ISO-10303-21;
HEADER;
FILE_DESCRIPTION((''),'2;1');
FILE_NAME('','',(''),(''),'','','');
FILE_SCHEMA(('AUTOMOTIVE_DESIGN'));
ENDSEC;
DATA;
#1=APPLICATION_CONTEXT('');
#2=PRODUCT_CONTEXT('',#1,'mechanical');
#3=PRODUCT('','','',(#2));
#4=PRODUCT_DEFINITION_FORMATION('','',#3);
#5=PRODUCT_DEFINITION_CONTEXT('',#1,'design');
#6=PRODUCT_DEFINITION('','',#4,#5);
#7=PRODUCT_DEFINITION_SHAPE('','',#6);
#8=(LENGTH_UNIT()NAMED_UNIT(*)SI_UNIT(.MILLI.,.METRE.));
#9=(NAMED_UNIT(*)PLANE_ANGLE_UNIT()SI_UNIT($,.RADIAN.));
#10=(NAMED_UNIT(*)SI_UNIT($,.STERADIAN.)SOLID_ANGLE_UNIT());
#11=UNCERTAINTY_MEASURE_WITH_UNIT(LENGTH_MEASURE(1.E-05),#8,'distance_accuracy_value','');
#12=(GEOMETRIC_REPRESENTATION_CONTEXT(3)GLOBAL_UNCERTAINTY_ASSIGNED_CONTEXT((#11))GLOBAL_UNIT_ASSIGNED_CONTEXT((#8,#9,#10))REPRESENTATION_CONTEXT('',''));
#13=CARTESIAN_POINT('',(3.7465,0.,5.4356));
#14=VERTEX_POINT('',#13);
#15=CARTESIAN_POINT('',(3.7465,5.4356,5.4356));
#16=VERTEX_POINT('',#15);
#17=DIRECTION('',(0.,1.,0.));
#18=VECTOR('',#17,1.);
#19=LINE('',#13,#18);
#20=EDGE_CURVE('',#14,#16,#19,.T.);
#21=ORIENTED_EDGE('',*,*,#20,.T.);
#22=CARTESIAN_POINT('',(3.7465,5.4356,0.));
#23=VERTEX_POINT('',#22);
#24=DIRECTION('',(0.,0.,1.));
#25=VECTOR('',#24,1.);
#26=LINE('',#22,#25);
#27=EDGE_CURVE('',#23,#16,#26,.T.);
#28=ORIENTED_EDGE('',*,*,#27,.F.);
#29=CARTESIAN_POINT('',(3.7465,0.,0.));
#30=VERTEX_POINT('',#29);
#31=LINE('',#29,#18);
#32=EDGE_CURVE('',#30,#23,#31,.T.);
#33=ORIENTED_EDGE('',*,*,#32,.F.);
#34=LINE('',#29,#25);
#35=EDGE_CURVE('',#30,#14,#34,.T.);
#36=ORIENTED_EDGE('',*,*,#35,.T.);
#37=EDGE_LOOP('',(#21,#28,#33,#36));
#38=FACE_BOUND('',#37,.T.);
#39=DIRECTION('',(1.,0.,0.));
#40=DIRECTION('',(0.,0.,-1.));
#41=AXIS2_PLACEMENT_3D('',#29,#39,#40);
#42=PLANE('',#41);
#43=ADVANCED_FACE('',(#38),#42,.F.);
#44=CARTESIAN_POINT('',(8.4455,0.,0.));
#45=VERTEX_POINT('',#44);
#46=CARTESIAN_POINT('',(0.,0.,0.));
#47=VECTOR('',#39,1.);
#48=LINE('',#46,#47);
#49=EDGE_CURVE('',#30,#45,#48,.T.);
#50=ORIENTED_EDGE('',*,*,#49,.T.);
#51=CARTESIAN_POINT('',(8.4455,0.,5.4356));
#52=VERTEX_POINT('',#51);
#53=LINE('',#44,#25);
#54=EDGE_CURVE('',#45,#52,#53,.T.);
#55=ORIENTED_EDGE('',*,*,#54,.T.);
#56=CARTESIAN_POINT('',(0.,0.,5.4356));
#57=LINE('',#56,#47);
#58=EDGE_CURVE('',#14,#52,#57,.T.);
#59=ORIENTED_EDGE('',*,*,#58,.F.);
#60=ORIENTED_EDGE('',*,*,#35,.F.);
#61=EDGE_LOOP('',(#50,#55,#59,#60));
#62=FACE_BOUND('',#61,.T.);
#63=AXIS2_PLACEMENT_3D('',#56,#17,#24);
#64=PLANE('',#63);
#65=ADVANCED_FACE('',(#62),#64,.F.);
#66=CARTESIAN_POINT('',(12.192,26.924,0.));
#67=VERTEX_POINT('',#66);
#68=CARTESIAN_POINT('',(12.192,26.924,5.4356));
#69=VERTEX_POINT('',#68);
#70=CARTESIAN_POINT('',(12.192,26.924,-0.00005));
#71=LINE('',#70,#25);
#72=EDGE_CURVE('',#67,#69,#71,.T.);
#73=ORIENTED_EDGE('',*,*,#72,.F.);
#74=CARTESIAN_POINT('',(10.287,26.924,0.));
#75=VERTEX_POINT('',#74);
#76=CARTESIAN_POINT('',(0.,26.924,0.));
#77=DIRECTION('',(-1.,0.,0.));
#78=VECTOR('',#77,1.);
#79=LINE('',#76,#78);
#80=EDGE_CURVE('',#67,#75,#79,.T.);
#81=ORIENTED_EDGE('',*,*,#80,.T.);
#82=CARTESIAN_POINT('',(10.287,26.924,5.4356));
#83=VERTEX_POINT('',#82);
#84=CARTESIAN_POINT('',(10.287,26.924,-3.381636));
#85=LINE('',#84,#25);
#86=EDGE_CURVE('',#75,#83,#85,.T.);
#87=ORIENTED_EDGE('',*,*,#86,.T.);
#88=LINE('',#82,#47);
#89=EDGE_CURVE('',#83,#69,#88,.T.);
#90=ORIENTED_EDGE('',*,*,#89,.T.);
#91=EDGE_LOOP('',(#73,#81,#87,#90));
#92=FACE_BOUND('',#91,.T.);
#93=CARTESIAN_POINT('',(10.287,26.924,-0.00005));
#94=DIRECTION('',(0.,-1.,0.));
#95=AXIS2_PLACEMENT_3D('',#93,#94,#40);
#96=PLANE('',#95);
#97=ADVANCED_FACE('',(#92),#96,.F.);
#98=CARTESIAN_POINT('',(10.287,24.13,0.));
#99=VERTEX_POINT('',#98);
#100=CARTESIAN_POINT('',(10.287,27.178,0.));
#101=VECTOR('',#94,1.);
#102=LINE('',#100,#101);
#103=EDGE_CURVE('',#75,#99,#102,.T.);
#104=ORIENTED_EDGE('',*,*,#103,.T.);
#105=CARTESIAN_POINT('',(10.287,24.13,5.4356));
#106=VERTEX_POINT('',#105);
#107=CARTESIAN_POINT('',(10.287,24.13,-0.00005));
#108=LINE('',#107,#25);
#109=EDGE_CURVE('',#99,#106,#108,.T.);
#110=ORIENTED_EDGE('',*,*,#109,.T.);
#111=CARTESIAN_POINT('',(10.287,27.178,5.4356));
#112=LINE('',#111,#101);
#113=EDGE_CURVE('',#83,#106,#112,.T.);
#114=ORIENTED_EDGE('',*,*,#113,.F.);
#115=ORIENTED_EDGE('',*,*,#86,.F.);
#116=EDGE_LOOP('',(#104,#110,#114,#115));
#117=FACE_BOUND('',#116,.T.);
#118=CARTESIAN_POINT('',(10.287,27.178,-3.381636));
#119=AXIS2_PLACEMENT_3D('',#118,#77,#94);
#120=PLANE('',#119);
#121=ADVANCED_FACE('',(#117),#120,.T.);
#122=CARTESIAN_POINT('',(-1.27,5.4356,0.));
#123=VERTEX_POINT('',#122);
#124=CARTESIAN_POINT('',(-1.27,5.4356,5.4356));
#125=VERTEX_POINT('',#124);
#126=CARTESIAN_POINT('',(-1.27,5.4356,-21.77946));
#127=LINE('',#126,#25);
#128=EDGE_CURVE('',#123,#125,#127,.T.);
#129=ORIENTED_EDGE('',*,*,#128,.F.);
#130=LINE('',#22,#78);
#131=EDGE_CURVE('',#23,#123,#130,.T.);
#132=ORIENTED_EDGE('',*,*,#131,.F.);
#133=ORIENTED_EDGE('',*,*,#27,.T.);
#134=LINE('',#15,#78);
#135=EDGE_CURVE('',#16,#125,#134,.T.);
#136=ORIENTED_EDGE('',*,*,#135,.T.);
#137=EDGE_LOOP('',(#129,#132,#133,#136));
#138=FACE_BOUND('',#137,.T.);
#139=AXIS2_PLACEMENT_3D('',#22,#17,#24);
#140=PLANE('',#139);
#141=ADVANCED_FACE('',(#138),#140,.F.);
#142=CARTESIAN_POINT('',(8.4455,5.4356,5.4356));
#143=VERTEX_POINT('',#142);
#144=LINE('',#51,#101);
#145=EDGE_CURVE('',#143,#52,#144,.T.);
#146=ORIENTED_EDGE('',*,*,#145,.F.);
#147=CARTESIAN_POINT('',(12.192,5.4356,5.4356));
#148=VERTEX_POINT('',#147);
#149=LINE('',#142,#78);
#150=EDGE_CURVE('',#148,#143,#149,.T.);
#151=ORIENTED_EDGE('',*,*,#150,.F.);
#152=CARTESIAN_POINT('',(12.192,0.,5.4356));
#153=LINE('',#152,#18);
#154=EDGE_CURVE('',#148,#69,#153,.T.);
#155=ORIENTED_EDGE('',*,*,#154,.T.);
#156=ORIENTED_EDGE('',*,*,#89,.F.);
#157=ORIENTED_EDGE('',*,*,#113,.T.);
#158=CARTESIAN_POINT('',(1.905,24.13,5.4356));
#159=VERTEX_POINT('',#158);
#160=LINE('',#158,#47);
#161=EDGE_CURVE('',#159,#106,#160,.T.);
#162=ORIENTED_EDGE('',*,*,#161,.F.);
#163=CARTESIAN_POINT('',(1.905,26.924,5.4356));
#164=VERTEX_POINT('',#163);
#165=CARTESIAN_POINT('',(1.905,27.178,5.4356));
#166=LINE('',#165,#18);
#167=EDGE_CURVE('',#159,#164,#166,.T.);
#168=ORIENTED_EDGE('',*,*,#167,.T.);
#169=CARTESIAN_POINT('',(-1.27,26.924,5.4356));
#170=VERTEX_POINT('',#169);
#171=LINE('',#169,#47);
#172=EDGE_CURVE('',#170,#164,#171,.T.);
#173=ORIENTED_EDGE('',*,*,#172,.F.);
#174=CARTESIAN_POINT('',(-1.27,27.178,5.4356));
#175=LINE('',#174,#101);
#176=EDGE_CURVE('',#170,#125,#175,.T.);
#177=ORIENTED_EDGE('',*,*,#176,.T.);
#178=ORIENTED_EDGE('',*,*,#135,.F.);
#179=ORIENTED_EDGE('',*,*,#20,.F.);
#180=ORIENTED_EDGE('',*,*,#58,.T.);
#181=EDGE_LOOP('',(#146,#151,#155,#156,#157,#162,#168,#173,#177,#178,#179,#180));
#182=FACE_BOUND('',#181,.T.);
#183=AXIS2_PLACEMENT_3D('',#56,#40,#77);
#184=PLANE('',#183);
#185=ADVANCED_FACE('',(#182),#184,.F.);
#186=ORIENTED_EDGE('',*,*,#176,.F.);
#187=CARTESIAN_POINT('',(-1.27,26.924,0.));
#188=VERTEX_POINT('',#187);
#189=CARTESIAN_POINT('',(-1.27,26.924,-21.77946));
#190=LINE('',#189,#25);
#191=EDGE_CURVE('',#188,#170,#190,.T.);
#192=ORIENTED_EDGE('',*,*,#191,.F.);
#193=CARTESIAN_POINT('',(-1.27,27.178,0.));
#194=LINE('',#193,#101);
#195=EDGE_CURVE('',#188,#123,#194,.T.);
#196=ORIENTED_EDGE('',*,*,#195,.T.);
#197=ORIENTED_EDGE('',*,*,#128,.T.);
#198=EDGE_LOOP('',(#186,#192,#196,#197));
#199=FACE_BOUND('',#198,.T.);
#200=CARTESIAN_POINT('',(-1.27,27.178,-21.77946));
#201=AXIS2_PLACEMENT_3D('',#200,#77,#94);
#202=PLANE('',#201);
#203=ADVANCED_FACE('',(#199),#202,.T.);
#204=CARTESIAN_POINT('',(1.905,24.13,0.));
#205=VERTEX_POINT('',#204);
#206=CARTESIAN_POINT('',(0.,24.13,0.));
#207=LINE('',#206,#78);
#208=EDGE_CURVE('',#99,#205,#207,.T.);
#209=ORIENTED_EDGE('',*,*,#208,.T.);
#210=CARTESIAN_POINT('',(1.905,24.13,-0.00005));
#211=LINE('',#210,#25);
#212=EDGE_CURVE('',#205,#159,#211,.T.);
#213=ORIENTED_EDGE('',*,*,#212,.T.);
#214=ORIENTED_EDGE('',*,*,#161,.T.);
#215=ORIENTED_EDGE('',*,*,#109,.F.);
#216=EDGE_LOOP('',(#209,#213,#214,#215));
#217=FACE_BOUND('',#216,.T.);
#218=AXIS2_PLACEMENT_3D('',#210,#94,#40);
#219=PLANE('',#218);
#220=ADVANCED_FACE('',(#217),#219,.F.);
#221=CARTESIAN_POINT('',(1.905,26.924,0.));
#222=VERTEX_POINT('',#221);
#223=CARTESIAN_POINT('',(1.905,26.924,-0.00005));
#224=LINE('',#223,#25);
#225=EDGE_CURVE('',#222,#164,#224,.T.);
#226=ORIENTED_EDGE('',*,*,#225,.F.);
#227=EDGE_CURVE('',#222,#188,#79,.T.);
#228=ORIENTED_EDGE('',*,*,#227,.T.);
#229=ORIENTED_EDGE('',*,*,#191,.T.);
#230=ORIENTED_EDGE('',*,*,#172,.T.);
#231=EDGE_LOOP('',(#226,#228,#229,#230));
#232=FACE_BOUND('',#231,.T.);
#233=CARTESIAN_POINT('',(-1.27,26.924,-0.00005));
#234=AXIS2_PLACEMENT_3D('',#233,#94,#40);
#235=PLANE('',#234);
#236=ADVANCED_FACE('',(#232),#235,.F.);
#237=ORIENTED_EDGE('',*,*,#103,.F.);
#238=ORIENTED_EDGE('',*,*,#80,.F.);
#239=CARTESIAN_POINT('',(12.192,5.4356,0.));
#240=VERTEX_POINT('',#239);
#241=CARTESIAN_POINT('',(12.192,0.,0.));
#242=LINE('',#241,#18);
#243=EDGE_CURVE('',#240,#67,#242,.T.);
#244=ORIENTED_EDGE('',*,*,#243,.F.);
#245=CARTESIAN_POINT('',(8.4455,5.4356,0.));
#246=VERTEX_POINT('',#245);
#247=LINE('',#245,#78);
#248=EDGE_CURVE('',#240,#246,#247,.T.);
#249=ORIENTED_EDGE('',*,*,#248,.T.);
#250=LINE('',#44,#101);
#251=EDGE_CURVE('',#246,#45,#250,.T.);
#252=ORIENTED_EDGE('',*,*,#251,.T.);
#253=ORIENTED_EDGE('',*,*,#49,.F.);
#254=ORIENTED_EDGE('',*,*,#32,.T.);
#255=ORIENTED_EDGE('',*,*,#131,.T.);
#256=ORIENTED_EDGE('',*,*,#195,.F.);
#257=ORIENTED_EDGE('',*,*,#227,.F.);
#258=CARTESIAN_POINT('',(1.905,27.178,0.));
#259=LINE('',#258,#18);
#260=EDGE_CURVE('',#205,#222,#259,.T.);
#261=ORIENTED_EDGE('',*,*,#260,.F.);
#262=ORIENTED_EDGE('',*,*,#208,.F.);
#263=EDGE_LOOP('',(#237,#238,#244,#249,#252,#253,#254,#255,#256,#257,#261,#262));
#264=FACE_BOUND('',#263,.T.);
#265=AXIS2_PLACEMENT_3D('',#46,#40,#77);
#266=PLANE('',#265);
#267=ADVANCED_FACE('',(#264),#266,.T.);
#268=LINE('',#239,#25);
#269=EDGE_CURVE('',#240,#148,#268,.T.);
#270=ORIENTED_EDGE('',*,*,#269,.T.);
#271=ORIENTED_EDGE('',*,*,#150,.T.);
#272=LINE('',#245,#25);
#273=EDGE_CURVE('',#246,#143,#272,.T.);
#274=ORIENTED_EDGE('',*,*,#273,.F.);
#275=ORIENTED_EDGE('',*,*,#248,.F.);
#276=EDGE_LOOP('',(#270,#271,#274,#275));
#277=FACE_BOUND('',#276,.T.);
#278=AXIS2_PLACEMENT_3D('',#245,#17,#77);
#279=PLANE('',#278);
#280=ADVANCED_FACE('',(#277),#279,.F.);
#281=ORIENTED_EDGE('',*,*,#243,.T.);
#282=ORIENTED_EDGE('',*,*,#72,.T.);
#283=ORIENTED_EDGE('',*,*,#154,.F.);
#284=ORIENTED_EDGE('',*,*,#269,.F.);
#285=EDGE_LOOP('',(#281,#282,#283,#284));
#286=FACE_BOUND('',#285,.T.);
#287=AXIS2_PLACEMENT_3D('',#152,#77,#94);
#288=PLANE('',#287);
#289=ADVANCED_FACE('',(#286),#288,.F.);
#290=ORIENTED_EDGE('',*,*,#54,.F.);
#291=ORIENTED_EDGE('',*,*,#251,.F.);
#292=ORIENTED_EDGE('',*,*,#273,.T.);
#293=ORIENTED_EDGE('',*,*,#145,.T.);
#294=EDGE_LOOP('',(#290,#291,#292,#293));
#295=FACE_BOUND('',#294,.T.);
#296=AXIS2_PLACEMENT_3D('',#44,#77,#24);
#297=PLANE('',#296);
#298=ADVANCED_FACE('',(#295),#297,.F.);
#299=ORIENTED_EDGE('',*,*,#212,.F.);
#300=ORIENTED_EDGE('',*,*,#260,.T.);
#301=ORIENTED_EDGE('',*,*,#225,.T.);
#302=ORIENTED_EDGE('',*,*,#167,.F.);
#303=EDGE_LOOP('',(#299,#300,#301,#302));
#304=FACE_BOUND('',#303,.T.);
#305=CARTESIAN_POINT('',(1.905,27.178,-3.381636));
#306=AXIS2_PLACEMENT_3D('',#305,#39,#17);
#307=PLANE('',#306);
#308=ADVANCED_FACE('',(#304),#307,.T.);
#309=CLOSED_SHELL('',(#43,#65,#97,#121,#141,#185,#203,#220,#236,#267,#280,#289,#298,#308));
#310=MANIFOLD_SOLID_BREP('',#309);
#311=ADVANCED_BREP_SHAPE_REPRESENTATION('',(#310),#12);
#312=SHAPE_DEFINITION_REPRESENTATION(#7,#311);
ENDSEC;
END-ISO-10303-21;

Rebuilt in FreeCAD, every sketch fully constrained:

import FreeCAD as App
import Part
import Sketcher
from FreeCAD import Vector
Q = App.Units.Quantity


def add_polygon(sketch, points):
    """Adds a closed chain of lines whose ends are joined by coincident constraints."""
    first, n = sketch.GeometryCount, len(points)
    for a, b in zip(points, points[1:] + points[:1]):
        sketch.addGeometry(Part.LineSegment(App.Vector(*a, 0), App.Vector(*b, 0)), False)
    for i in range(n):
        sketch.addConstraint(Sketcher.Constraint("Coincident", first + i, 2, first + (i + 1) % n, 1))

doc = App.newDocument("Part")
body = doc.addObject("PartDesign::Body", "Body")

# Sketch on XY plane
sketch1 = doc.addObject("Sketcher::SketchObject", "Sketch")
body.addObject(sketch1)
sketch1.AttachmentSupport = (doc.XY_Plane, [""])
sketch1.MapMode = "FlatFace"
add_polygon(sketch1, [(0, 24.384), (0, 0), (12.192, 0), (12.192, 24.384)])  # lines 0-3
sketch1.addConstraint([
    Sketcher.Constraint("Vertical", 0),
    Sketcher.Constraint("Horizontal", 1),
    Sketcher.Constraint("Vertical", 2),
    Sketcher.Constraint("Horizontal", 3),
    Sketcher.Constraint("Coincident", 0, 2, -1, 1),
    Sketcher.Constraint("DistanceX", 1, 1, 1, 2, Q("0.48 in")),
    Sketcher.Constraint("DistanceY", 0, 2, 0, 1, Q("0.96 in")),
])
pad1 = doc.addObject("PartDesign::Pad", "Pad")
body.addObject(pad1)
pad1.Profile = sketch1
pad1.Length = Q("0.214 in")

# Sketch on XY plane
sketch2 = doc.addObject("Sketcher::SketchObject", "Sketch001")
body.addObject(sketch2)
sketch2.AttachmentSupport = (doc.XY_Plane, [""])
sketch2.MapMode = "FlatFace"
sketch2.AttachmentOffset = App.Placement(Vector(0, 0, 0.214 * 25.4), App.Rotation())
add_polygon(sketch2, [(0, 5.4356), (0, 0), (3.7465, 0), (3.7465, 5.4356)])  # lines 0-3
add_polygon(sketch2, [(8.4455, 5.4356), (8.4455, 0), (12.192, 0), (12.192, 5.4356)])  # lines 4-7
sketch2.addConstraint([
    Sketcher.Constraint("Vertical", 0),
    Sketcher.Constraint("Horizontal", 1),
    Sketcher.Constraint("Vertical", 2),
    Sketcher.Constraint("Horizontal", 3),
    Sketcher.Constraint("Vertical", 4),
    Sketcher.Constraint("Horizontal", 5),
    Sketcher.Constraint("Vertical", 6),
    Sketcher.Constraint("Horizontal", 7),
    Sketcher.Constraint("Coincident", 0, 2, -1, 1),
    Sketcher.Constraint("PointOnObject", 4, 2, -1),
    Sketcher.Constraint("Horizontal", 3, 2, 6, 2),
    Sketcher.Constraint("Equal", 3, 5),
    Sketcher.Constraint("DistanceY", 0, 2, 0, 1, Q("0.214 in")),
    Sketcher.Constraint("DistanceX", -1, 1, 5, 2, Q("0.48 in")),
    Sketcher.Constraint("DistanceX", 1, 1, 1, 2, Q("0.1475 in")),
])
pocket1 = doc.addObject("PartDesign::Pocket", "Pocket")
body.addObject(pocket1)
pocket1.Profile = sketch2
pocket1.Length = Q("0.214 in")

# Sketch on XY plane
sketch3 = doc.addObject("Sketcher::SketchObject", "Sketch002")
body.addObject(sketch3)
sketch3.AttachmentSupport = (doc.XY_Plane, [""])
sketch3.MapMode = "FlatFace"
sketch3.AttachmentOffset = App.Placement(Vector(0, 0, 0.214 * 25.4), App.Rotation())
add_polygon(sketch3, [(0, 27.178), (0, 24.384), (1.905, 24.384), (1.905, 27.178)])  # lines 0-3
add_polygon(sketch3, [(10.287, 27.178), (10.287, 24.384), (12.192, 24.384), (12.192, 27.178)])  # lines 4-7
sketch3.addConstraint([
    Sketcher.Constraint("Vertical", 0),
    Sketcher.Constraint("Horizontal", 1),
    Sketcher.Constraint("Vertical", 2),
    Sketcher.Constraint("Horizontal", 3),
    Sketcher.Constraint("Vertical", 4),
    Sketcher.Constraint("Horizontal", 5),
    Sketcher.Constraint("Vertical", 6),
    Sketcher.Constraint("Horizontal", 7),
    Sketcher.Constraint("PointOnObject", 0, 2, -2),
    Sketcher.Constraint("Horizontal", 1, 2, 4, 2),
    Sketcher.Constraint("Horizontal", 3, 2, 6, 2),
    Sketcher.Constraint("Equal", 3, 5),
    Sketcher.Constraint("DistanceY", 0, 2, 0, 1, Q("0.11 in")),
    Sketcher.Constraint("DistanceX", 1, 1, 1, 2, Q("0.075 in")),
    Sketcher.Constraint("DistanceY", -1, 1, 0, 2, Q("0.96 in")),
    Sketcher.Constraint("DistanceX", -1, 1, 5, 2, Q("0.48 in")),
])
pad2 = doc.addObject("PartDesign::Pad", "Pad001")
body.addObject(pad2)
pad2.Profile = sketch3
pad2.Length = Q("0.214 in")
pad2.Reversed = True

# Sketch on XY plane
sketch4 = doc.addObject("Sketcher::SketchObject", "Sketch003")
body.addObject(sketch4)
sketch4.AttachmentSupport = (doc.XY_Plane, [""])
sketch4.MapMode = "FlatFace"
sketch4.AttachmentOffset = App.Placement(Vector(0, 0, 0.214 * 25.4), App.Rotation())
add_polygon(sketch4, [(-1.27, 27.178), (-1.27, 5.4356), (0, 5.4356), (0, 27.178)])  # lines 0-3
sketch4.addConstraint([
    Sketcher.Constraint("Vertical", 0),
    Sketcher.Constraint("Horizontal", 1),
    Sketcher.Constraint("Vertical", 2),
    Sketcher.Constraint("Horizontal", 3),
    Sketcher.Constraint("PointOnObject", 1, 2, -2),
    Sketcher.Constraint("DistanceX", 1, 1, 1, 2, Q("0.05 in")),
    Sketcher.Constraint("DistanceY", 0, 2, 0, 1, Q("0.856 in")),
    Sketcher.Constraint("DistanceY", -1, 1, 2, 2, Q("1.07 in")),
])
pad3 = doc.addObject("PartDesign::Pad", "Pad002")
body.addObject(pad3)
pad3.Profile = sketch4
pad3.Length = Q("0.214 in")
pad3.Reversed = True

# Sketch on XY plane
sketch5 = doc.addObject("Sketcher::SketchObject", "Sketch004")
body.addObject(sketch5)
sketch5.AttachmentSupport = (doc.XY_Plane, [""])
sketch5.MapMode = "FlatFace"
sketch5.AttachmentOffset = App.Placement(Vector(0, 0, 0.214 * 25.4), App.Rotation())
add_polygon(sketch5, [(-1.27, 27.178), (-1.27, 26.924), (1.905, 26.924), (1.905, 27.178)])  # lines 0-3
add_polygon(sketch5, [(10.287, 27.178), (10.287, 26.924), (12.192, 26.924), (12.192, 27.178)])  # lines 4-7
add_polygon(sketch5, [(1.905, 24.384), (1.905, 24.13), (10.287, 24.13), (10.287, 24.384)])  # lines 8-11
sketch5.addConstraint([
    Sketcher.Constraint("Vertical", 0),
    Sketcher.Constraint("Horizontal", 1),
    Sketcher.Constraint("Vertical", 2),
    Sketcher.Constraint("Horizontal", 3),
    Sketcher.Constraint("Vertical", 4),
    Sketcher.Constraint("Horizontal", 5),
    Sketcher.Constraint("Vertical", 6),
    Sketcher.Constraint("Horizontal", 7),
    Sketcher.Constraint("Vertical", 8),
    Sketcher.Constraint("Horizontal", 9),
    Sketcher.Constraint("Vertical", 10),
    Sketcher.Constraint("Horizontal", 11),
    Sketcher.Constraint("Horizontal", 1, 2, 4, 2),
    Sketcher.Constraint("Horizontal", 3, 2, 6, 2),
    Sketcher.Constraint("Vertical", 2, 2, 8, 2),
    Sketcher.Constraint("Vertical", 7, 2, 9, 2),
    Sketcher.Constraint("Equal", 6, 8),
    Sketcher.Constraint("DistanceX", 9, 1, 9, 2, Q("0.33 in")),
    Sketcher.Constraint("DistanceY", 0, 2, 0, 1, Q("0.01 in")),
    Sketcher.Constraint("DistanceY", 10, 2, 4, 2, Q("0.1 in")),
    Sketcher.Constraint("DistanceX", 1, 1, 1, 2, Q("0.125 in")),
    Sketcher.Constraint("DistanceX", 5, 1, 5, 2, Q("0.075 in")),
    Sketcher.Constraint("DistanceX", 0, 2, -1, 1, Q("0.05 in")),
    Sketcher.Constraint("DistanceY", -1, 1, 0, 2, Q("1.06 in")),
])
pocket2 = doc.addObject("PartDesign::Pocket", "Pocket001")
body.addObject(pocket2)
pocket2.Profile = sketch5
pocket2.Type = "ThroughAll"

doc.recompute()
